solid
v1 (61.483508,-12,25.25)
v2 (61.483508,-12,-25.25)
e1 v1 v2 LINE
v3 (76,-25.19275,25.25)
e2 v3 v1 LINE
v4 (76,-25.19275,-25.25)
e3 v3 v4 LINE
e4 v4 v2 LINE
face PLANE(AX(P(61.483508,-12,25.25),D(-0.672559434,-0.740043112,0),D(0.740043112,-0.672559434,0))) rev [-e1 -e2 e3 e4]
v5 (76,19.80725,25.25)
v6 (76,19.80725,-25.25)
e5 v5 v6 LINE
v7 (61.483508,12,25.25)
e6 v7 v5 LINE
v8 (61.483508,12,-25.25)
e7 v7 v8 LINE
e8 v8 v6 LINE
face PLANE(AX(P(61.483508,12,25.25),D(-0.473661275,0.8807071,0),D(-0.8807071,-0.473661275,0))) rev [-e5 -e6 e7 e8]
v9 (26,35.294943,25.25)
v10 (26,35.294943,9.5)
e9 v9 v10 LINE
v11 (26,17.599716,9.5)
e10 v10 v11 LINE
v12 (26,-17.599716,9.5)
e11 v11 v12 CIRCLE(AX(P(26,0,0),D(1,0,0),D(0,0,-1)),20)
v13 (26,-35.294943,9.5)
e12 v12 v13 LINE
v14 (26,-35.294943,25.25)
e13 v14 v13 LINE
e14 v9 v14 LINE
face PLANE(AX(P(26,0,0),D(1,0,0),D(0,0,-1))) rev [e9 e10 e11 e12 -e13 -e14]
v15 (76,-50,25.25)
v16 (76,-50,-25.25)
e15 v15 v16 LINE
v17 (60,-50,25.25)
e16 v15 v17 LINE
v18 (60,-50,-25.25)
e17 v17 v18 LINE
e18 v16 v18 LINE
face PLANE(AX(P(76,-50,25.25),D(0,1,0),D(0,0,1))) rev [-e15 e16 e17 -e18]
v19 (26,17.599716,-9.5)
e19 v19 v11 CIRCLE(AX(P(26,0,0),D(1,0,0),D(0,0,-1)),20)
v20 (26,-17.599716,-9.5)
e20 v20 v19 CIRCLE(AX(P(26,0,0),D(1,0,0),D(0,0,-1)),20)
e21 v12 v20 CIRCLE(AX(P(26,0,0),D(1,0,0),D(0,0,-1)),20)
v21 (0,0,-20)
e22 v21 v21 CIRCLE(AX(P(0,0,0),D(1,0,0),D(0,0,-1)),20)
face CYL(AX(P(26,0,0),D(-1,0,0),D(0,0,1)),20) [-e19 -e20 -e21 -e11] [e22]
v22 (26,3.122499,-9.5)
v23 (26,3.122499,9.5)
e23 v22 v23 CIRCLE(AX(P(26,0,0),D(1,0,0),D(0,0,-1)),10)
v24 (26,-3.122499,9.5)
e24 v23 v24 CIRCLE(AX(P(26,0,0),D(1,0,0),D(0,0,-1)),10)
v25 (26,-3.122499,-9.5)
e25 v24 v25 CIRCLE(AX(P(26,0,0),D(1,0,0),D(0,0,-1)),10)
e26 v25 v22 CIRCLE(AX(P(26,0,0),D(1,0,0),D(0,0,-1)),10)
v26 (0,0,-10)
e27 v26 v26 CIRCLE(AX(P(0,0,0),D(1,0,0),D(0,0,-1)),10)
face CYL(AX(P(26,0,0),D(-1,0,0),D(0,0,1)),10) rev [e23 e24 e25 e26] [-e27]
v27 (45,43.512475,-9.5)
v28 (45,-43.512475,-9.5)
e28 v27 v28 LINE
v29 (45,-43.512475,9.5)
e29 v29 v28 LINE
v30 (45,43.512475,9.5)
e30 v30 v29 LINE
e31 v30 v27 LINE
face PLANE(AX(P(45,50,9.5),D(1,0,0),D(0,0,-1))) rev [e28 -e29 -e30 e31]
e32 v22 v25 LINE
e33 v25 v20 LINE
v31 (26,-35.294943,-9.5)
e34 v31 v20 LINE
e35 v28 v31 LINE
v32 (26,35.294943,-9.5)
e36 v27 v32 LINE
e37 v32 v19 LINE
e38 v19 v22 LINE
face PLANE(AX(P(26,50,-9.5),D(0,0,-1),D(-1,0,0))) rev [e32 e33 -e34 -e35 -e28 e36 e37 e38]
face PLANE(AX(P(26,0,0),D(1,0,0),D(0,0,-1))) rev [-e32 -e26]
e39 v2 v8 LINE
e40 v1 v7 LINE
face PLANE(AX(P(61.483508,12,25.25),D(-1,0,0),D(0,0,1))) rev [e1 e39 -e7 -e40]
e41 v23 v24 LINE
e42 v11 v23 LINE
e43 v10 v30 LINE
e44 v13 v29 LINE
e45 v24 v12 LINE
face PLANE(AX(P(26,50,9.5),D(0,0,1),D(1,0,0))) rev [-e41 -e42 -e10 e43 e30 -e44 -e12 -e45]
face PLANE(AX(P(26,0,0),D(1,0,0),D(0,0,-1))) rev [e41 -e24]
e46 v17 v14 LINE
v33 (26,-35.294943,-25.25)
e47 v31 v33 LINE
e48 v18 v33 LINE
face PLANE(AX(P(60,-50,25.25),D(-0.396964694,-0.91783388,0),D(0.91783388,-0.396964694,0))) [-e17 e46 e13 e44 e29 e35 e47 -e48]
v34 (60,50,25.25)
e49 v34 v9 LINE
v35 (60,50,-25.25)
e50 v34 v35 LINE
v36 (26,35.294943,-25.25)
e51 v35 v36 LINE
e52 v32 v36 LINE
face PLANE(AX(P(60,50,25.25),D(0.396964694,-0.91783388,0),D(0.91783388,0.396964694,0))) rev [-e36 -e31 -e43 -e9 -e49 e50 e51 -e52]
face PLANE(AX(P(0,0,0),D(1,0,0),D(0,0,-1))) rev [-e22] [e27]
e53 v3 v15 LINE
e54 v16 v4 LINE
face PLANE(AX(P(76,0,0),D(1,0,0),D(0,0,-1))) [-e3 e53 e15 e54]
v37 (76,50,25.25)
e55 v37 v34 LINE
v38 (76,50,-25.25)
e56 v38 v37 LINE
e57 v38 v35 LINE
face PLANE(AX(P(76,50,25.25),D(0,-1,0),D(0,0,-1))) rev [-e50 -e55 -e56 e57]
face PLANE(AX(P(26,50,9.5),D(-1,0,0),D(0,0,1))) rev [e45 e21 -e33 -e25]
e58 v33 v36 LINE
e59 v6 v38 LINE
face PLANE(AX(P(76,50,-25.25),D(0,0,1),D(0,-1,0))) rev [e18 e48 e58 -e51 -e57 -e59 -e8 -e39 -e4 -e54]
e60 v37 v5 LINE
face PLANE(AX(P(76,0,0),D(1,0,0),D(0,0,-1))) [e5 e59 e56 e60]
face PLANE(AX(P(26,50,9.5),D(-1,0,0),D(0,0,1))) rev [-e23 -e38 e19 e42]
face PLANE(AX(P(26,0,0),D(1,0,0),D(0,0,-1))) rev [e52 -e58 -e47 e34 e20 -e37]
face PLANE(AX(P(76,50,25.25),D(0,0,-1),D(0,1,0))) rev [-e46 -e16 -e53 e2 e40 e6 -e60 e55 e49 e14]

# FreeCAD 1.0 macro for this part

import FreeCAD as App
import Part
import Sketcher
from FreeCAD import Vector
Q = App.Units.Quantity


def add_polygon(sketch, points):
    """Adds a closed chain of lines whose ends are joined by coincident constraints."""
    first, n = sketch.GeometryCount, len(points)
    for a, b in zip(points, points[1:] + points[:1]):
        sketch.addGeometry(Part.LineSegment(App.Vector(*a, 0), App.Vector(*b, 0)), False)
    for i in range(n):
        sketch.addConstraint(Sketcher.Constraint("Coincident", first + i, 2, first + (i + 1) % n, 1))

doc = App.newDocument("Part")
params = doc.addObject("Spreadsheet::Sheet", "Params")
for row, (alias, value) in enumerate([
    ("sketch1_diameter", "40 mm"),
    ("sketch1_diameter2", "20 mm"),
    ("pad1_length", "26 mm"),
    ("sketch2_width", "100 mm"),
    ("sketch2_height", "50.5 mm"),
    ("pad2_length", "50 mm"),
    ("sketch3_width", "19 mm"),
    ("sketch4_width", "34 mm"),
    ("sketch5_height", "45 mm"),
    ("sketch5_height2", "24 mm"),
], start=1):
    params.set(f"A{row}", alias)
    params.set(f"B{row}", "=" + value)
    params.setAlias(f"B{row}", alias)

body = doc.addObject("PartDesign::Body", "Body")

sketch1 = body.newObject("Sketcher::SketchObject", "Sketch")
sketch1.AttachmentSupport = (doc.getObject("YZ_Plane"), [""])
sketch1.MapMode = "FlatFace"
sketch1.addGeometry([
    Part.Circle(Vector(0, 0, 0), Vector(0, 0, 1), 20),
    Part.Circle(Vector(0, 0, 0), Vector(0, 0, 1), 10),
], False)
sketch1.addConstraint([
    Sketcher.Constraint("Coincident", 0, 3, -1, 1),
    Sketcher.Constraint("Coincident", 1, 3, -1, 1),
    Sketcher.Constraint("Diameter", 0, Q("40 mm")),
    Sketcher.Constraint("Diameter", 1, Q("20 mm")),
])
sketch1.setExpression("Constraints[2]", "Params.sketch1_diameter")
sketch1.setExpression("Constraints[3]", "Params.sketch1_diameter2")
pad1 = body.newObject("PartDesign::Pad", "Pad")
pad1.Profile = sketch1
pad1.setExpression("Length", "Params.pad1_length")

sketch2 = body.newObject("Sketcher::SketchObject", "Sketch001")
sketch2.AttachmentSupport = (doc.getObject("YZ_Plane"), [""])
sketch2.MapMode = "FlatFace"
sketch2.AttachmentOffset = App.Placement(Vector(0, 0, 26), App.Rotation())
add_polygon(sketch2, [(50, 25), (-50, 25), (-50, -25), (50, -25)])
sketch2.addConstraint([
    Sketcher.Constraint("Horizontal", 0),
    Sketcher.Constraint("Vertical", 1),
    Sketcher.Constraint("Horizontal", 2),
    Sketcher.Constraint("Vertical", 3),
    Sketcher.Constraint("Symmetric", 0, 2, 2, 2, -1, 1),
    Sketcher.Constraint("DistanceX", 0, 2, 0, 1, Q("100 mm")),
    Sketcher.Constraint("DistanceY", 1, 2, 1, 1, Q("50.5 mm")),
])
sketch2.setExpression("Constraints[9]", "Params.sketch2_width")
sketch2.setExpression("Constraints[10]", "Params.sketch2_height")
pad2 = body.newObject("PartDesign::Pad", "Pad001")
pad2.Profile = sketch2
pad2.setExpression("Length", "Params.pad2_length")

sketch3 = body.newObject("Sketcher::SketchObject", "Sketch002")
sketch3.AttachmentSupport = (doc.getObject("XZ_Plane"), [""])
sketch3.MapMode = "FlatFace"
sketch3.AttachmentOffset = App.Placement(Vector(0, 0, 50), App.Rotation())
add_polygon(sketch3, [(26, 10), (26, -10), (45, -10), (45, 10)])
sketch3.addConstraint([
    Sketcher.Constraint("Vertical", 0),
    Sketcher.Constraint("Horizontal", 1),
    Sketcher.Constraint("Vertical", 2),
    Sketcher.Constraint("Horizontal", 3),
    Sketcher.Constraint("Equal", 3, 0),
    Sketcher.Constraint("DistanceX", 1, 1, 1, 2, Q("19 mm")),
    Sketcher.Constraint("DistanceX", -1, 1, 0, 2, Q("26 mm")),
    Sketcher.Constraint("DistanceY", 0, 2, -1, 1, Q("9.5 mm")),
])
sketch3.setExpression("Constraints[9]", "Params.sketch3_width")
pocket1 = body.newObject("PartDesign::Pocket", "Pocket")
pocket1.Profile = sketch3
pocket1.Type = "ThroughAll"

sketch4 = body.newObject("Sketcher::SketchObject", "Sketch003")
sketch4.AttachmentSupport = (doc.getObject("XY_Plane"), [""])
sketch4.MapMode = "FlatFace"
sketch4.AttachmentOffset = App.Placement(Vector(0, 0, -25.25), App.Rotation())
add_polygon(sketch4, [(26, 50), (60, 50), (26, 35)])
add_polygon(sketch4, [(26, -35), (60, -50), (26, -50)])
sketch4.addConstraint([
    Sketcher.Constraint("Horizontal", 0),
    Sketcher.Constraint("Vertical", 2),
    Sketcher.Constraint("Horizontal", 4),
    Sketcher.Constraint("Vertical", 5),
    Sketcher.Constraint("Symmetric", 0, 2, 3, 2, -1),
    Sketcher.Constraint("Symmetric", 1, 2, 5, 2, -1),
    Sketcher.Constraint("DistanceX", 0, 1, 0, 2, Q("34 mm")),
    Sketcher.Constraint("DistanceX", -1, 1, 0, 2, Q("60 mm")),
    Sketcher.Constraint("DistanceY", -1, 1, 0, 2, Q("50 mm")),
    Sketcher.Constraint("Distance", 1, Q("37.04374 mm")),
])
sketch4.setExpression("Constraints[12]", "Params.sketch4_width")
pocket2 = body.newObject("PartDesign::Pocket", "Pocket001")
pocket2.Profile = sketch4
pocket2.Type = "ThroughAll"
pocket2.Reversed = True

sketch5 = body.newObject("Sketcher::SketchObject", "Sketch004")
sketch5.AttachmentSupport = (doc.getObject("XY_Plane"), [""])
sketch5.MapMode = "FlatFace"
sketch5.AttachmentOffset = App.Placement(Vector(0, 0, -25.25), App.Rotation())
add_polygon(sketch5, [(76, 20), (76, -25), (61, -12), (61, 12)])
sketch5.addConstraint([
    Sketcher.Constraint("Vertical", 0),
    Sketcher.Constraint("Vertical", 2),
    Sketcher.Constraint("DistanceY", 0, 2, 0, 1, Q("45 mm")),
    Sketcher.Constraint("DistanceY", 2, 1, 2, 2, Q("24 mm")),
    Sketcher.Constraint("DistanceX", -1, 1, 0, 2, Q("76 mm")),
    Sketcher.Constraint("DistanceY", 1, 2, -1, 1, Q("12 mm")),
    Sketcher.Constraint("Distance", 1, Q("19.615739 mm")),
    Sketcher.Constraint("Distance", 3, Q("16.48277 mm")),
])
sketch5.setExpression("Constraints[6]", "Params.sketch5_height")
sketch5.setExpression("Constraints[7]", "Params.sketch5_height2")
pocket3 = body.newObject("PartDesign::Pocket", "Pocket002")
pocket3.Profile = sketch5
pocket3.Type = "ThroughAll"
pocket3.Reversed = True

doc.recompute()
